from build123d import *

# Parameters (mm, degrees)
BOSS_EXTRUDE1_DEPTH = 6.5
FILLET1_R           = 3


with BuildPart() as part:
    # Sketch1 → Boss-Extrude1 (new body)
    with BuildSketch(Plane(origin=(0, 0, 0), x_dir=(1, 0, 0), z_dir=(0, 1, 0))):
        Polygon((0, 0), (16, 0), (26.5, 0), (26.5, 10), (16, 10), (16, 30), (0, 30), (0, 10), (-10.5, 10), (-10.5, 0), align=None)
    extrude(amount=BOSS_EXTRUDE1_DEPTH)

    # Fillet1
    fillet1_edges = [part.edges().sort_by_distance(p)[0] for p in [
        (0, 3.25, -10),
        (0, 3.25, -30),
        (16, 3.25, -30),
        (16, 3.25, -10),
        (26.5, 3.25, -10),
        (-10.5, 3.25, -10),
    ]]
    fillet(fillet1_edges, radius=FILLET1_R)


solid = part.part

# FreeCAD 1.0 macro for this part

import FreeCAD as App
import Part
import Sketcher
Q = App.Units.Quantity


def edges_at(feature, points):
    """Names of the edges that pass closest to the given points."""
    edges = feature.Shape.Edges
    near = lambda p: min(range(len(edges)), key=lambda i: edges[i].distToShape(Part.Vertex(*p))[0])
    return sorted({f"Edge{near(p) + 1}" for p in points})


def add_polygon(sketch, points):
    """Adds a closed chain of lines whose ends are joined by coincident constraints."""
    first, n = sketch.GeometryCount, len(points)
    for a, b in zip(points, points[1:] + points[:1]):
        sketch.addGeometry(Part.LineSegment(App.Vector(*a, 0), App.Vector(*b, 0)), False)
    for i in range(n):
        sketch.addConstraint(Sketcher.Constraint("Coincident", first + i, 2, first + (i + 1) % n, 1))

doc = App.newDocument("Part")
body = doc.addObject("PartDesign::Body", "Body")

# Sketch on XZ plane
sketch1 = body.newObject("Sketcher::SketchObject", "Sketch")
sketch1.AttachmentSupport = (doc.getObject("XZ_Plane"), [""])
sketch1.MapMode = "FlatFace"
add_polygon(sketch1, [(26, 0), (26, -10), (16, -10), (16, -30), (0, -30), (0, -10), (-10, -10), (-10, 0)])  # lines 0-7
sketch1.addConstraint(Sketcher.Constraint("Vertical", 0))
sketch1.addConstraint(Sketcher.Constraint("Horizontal", 1))
sketch1.addConstraint(Sketcher.Constraint("Vertical", 2))
sketch1.addConstraint(Sketcher.Constraint("Horizontal", 3))
sketch1.addConstraint(Sketcher.Constraint("Vertical", 4))
sketch1.addConstraint(Sketcher.Constraint("Horizontal", 5))
sketch1.addConstraint(Sketcher.Constraint("Vertical", 6))
sketch1.addConstraint(Sketcher.Constraint("Horizontal", 7))
sketch1.addConstraint(Sketcher.Constraint("PointOnObject", 3, 2, -2))
sketch1.addConstraint(Sketcher.Constraint("PointOnObject", 6, 2, -1))
sketch1.addConstraint(Sketcher.Constraint("Horizontal", 1, 2, 4, 2))
sketch1.addConstraint(Sketcher.Constraint("Equal", 1, 5))
sketch1.addConstraint(Sketcher.Constraint("DistanceX", 3, 2, 3, 1, Q("16 mm")))
sketch1.addConstraint(Sketcher.Constraint("DistanceX", 7, 1, 7, 2, Q("37 mm")))
sketch1.addConstraint(Sketcher.Constraint("DistanceY", 0, 2, 0, 1, Q("10 mm")))
sketch1.addConstraint(Sketcher.Constraint("DistanceY", 2, 2, 2, 1, Q("20 mm")))
pad1 = body.newObject("PartDesign::Pad", "Pad")
pad1.Profile = sketch1
pad1.Length = 6.5
pad1.Reversed = True
doc.recompute()

fillet = body.newObject("PartDesign::Fillet", "Fillet")
fillet.Base = (pad1, edges_at(pad1, [
    (0, 3.25, -10),
    (0, 3.25, -30),
    (16, 3.25, -30),
    (16, 3.25, -10),
    (26.5, 3.25, -10),
    (-10.5, 3.25, -10),
]))
fillet.Radius = 3

doc.recompute()
